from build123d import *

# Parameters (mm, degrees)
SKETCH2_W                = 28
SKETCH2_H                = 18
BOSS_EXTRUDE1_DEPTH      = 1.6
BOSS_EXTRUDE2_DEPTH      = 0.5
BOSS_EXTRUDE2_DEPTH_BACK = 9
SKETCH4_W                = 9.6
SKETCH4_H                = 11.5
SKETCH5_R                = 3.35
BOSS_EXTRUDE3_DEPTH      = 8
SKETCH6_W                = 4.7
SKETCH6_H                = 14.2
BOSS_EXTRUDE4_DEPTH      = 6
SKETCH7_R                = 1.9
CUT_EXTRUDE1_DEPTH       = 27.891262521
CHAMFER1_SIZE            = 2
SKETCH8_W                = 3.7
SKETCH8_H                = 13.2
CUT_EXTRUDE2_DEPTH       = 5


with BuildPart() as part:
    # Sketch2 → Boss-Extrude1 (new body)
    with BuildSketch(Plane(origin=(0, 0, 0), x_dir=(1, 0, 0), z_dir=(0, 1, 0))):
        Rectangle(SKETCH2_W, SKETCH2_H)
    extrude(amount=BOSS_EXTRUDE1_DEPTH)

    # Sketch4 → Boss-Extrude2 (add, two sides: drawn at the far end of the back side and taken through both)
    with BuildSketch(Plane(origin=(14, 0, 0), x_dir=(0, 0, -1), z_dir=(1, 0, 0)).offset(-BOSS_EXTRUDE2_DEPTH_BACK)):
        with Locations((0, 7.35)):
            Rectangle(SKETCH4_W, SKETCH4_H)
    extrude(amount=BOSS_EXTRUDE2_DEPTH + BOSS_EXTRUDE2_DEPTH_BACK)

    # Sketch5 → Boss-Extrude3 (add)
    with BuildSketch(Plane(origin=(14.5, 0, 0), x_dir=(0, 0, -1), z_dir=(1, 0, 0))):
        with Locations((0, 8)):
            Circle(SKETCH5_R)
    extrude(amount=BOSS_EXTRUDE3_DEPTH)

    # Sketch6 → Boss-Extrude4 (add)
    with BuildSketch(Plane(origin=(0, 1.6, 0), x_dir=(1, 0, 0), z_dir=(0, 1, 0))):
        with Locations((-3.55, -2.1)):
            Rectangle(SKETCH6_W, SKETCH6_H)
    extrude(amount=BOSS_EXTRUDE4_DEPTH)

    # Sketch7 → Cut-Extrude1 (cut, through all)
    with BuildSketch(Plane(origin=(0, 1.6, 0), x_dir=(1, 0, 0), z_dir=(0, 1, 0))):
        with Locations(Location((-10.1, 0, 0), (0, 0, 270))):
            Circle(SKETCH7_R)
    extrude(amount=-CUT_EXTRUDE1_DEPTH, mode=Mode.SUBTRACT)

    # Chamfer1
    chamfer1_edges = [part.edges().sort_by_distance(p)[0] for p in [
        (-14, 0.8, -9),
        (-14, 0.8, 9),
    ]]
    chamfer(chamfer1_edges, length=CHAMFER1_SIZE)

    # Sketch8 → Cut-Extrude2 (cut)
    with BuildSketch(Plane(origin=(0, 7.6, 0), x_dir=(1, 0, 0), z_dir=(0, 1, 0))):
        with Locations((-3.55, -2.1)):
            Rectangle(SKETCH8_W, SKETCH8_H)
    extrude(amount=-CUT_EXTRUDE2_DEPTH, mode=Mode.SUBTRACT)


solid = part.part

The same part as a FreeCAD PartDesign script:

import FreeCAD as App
import Part
import Sketcher
from FreeCAD import Vector


def edges_at(feature, points):
    """Names of the edges that pass closest to the given points."""
    edges = feature.Shape.Edges
    near = lambda p: min(range(len(edges)), key=lambda i: edges[i].distToShape(Part.Vertex(*p))[0])
    return sorted({f"Edge{near(p) + 1}" for p in points})

doc = App.newDocument("Part")
body = doc.addObject("PartDesign::Body", "Body")

sketch1 = body.newObject("Sketcher::SketchObject", "Sketch")
sketch1.AttachmentSupport = (doc.getObject("XZ_Plane"), [""])
sketch1.MapMode = "FlatFace"
sketch1.addGeometry([
    Part.LineSegment(Vector(-14, -9, 0), Vector(-14, 9, 0)),
    Part.LineSegment(Vector(-14, 9, 0), Vector(14, 9, 0)),
    Part.LineSegment(Vector(14, 9, 0), Vector(14, -9, 0)),
    Part.LineSegment(Vector(14, -9, 0), Vector(-14, -9, 0)),
], False)
sketch1.addConstraint([
    Sketcher.Constraint("Coincident", 0, 2, 1, 1),
    Sketcher.Constraint("Coincident", 1, 2, 2, 1),
    Sketcher.Constraint("Coincident", 2, 2, 3, 1),
    Sketcher.Constraint("Coincident", 3, 2, 0, 1),
    Sketcher.Constraint("Vertical", 0),
    Sketcher.Constraint("Horizontal", 1),
    Sketcher.Constraint("Vertical", 2),
    Sketcher.Constraint("Horizontal", 3),
    Sketcher.Constraint("Symmetric", 0, 2, 2, 2, -1, 1),
    Sketcher.Constraint("DistanceX", 1, 1, 1, 2, 28.0),
    Sketcher.Constraint("DistanceY", 0, 1, 0, 2, 18.0),
])
pad1 = body.newObject("PartDesign::Pad", "Pad")
pad1.Profile = sketch1
pad1.Length = 1.6
pad1.Reversed = True

sketch2 = body.newObject("Sketcher::SketchObject", "Sketch001")
sketch2.AttachmentSupport = (doc.getObject("YZ_Plane"), [""])
sketch2.MapMode = "FlatFace"
sketch2.AttachmentOffset = App.Placement(Vector(0, 0, 14), App.Rotation())
sketch2.addGeometry([
    Part.LineSegment(Vector(13, 5, 0), Vector(2, 5, 0)),
    Part.LineSegment(Vector(2, 5, 0), Vector(2, -5, 0)),
    Part.LineSegment(Vector(2, -5, 0), Vector(13, -5, 0)),
    Part.LineSegment(Vector(13, -5, 0), Vector(13, 5, 0)),
], False)
sketch2.addConstraint([
    Sketcher.Constraint("Coincident", 0, 2, 1, 1),
    Sketcher.Constraint("Coincident", 1, 2, 2, 1),
    Sketcher.Constraint("Coincident", 2, 2, 3, 1),
    Sketcher.Constraint("Coincident", 3, 2, 0, 1),
    Sketcher.Constraint("Horizontal", 0),
    Sketcher.Constraint("Vertical", 1),
    Sketcher.Constraint("Horizontal", 2),
    Sketcher.Constraint("Vertical", 3),
    Sketcher.Constraint("DistanceX", 0, 2, 0, 1, 11.5),
    Sketcher.Constraint("DistanceY", 1, 2, 1, 1, 9.6),
    Sketcher.Constraint("DistanceX", -1, 1, 0, 2, 1.6),
    Sketcher.Constraint("DistanceY", -1, 1, 0, 2, 4.8),
])
pad2 = body.newObject("PartDesign::Pad", "Pad001")
pad2.Profile = sketch2
pad2.Type = "TwoLengths"
pad2.Length = 0.5
pad2.Length2 = 9

sketch3 = body.newObject("Sketcher::SketchObject", "Sketch002")
sketch3.AttachmentSupport = (doc.getObject("YZ_Plane"), [""])
sketch3.MapMode = "FlatFace"
sketch3.AttachmentOffset = App.Placement(Vector(0, 0, 14.5), App.Rotation())
sketch3.addGeometry(Part.Circle(Vector(8, 0, 0), Vector(0, 0, 1), 3.4), False)
sketch3.addConstraint([
    Sketcher.Constraint("PointOnObject", 0, 3, -1),
    Sketcher.Constraint("Diameter", 0, 6.7),
    Sketcher.Constraint("DistanceX", -1, 1, 0, 3, 8.0),
])
pad3 = body.newObject("PartDesign::Pad", "Pad002")
pad3.Profile = sketch3
pad3.Length = 8

sketch4 = body.newObject("Sketcher::SketchObject", "Sketch003")
sketch4.AttachmentSupport = (doc.getObject("XZ_Plane"), [""])
sketch4.MapMode = "FlatFace"
sketch4.AttachmentOffset = App.Placement(Vector(0, 0, -1.6), App.Rotation())
sketch4.addGeometry([
    Part.LineSegment(Vector(-5.9, -5, 0), Vector(-5.9, 9.2, 0)),
    Part.LineSegment(Vector(-5.9, 9.2, 0), Vector(-1.2, 9.2, 0)),
    Part.LineSegment(Vector(-1.2, 9.2, 0), Vector(-1.2, -5, 0)),
    Part.LineSegment(Vector(-1.2, -5, 0), Vector(-5.9, -5, 0)),
], False)
sketch4.addConstraint([
    Sketcher.Constraint("Coincident", 0, 2, 1, 1),
    Sketcher.Constraint("Coincident", 1, 2, 2, 1),
    Sketcher.Constraint("Coincident", 2, 2, 3, 1),
    Sketcher.Constraint("Coincident", 3, 2, 0, 1),
    Sketcher.Constraint("Vertical", 0),
    Sketcher.Constraint("Horizontal", 1),
    Sketcher.Constraint("Vertical", 2),
    Sketcher.Constraint("Horizontal", 3),
    Sketcher.Constraint("DistanceX", 1, 1, 1, 2, 4.7),
    Sketcher.Constraint("DistanceY", 0, 1, 0, 2, 14.2),
    Sketcher.Constraint("DistanceY", 2, 2, -1, 1, 5.0),
    Sketcher.Constraint("DistanceX", 0, 2, -1, 1, 5.9),
])
pad4 = body.newObject("PartDesign::Pad", "Pad003")
pad4.Profile = sketch4
pad4.Length = 6
pad4.Reversed = True

sketch5 = body.newObject("Sketcher::SketchObject", "Sketch004")
sketch5.AttachmentSupport = (doc.getObject("XZ_Plane"), [""])
sketch5.MapMode = "FlatFace"
sketch5.AttachmentOffset = App.Placement(Vector(0, 0, -1.6), App.Rotation())
sketch5.addGeometry(Part.Circle(Vector(-10.1, 0, 0), Vector(0, 0, 1), 1.9), False)
sketch5.addConstraint([
    Sketcher.Constraint("PointOnObject", 0, 3, -1),
    Sketcher.Constraint("Diameter", 0, 3.8),
    Sketcher.Constraint("DistanceX", 0, 3, -1, 1, 10.1),
])
pocket1 = body.newObject("PartDesign::Pocket", "Pocket")
pocket1.Profile = sketch5
pocket1.Type = "ThroughAll"
pocket1.Reversed = True
doc.recompute()

chamfer = body.newObject("PartDesign::Chamfer", "Chamfer")
chamfer.Base = (pocket1, edges_at(pocket1, [(-14, 0.8, -9), (-14, 0.8, 9)]))
chamfer.Size = 2

sketch6 = body.newObject("Sketcher::SketchObject", "Sketch005")
sketch6.AttachmentSupport = (doc.getObject("XZ_Plane"), [""])
sketch6.MapMode = "FlatFace"
sketch6.AttachmentOffset = App.Placement(Vector(0, 0, -7.6), App.Rotation())
sketch6.addGeometry([
    Part.LineSegment(Vector(-5.4, -4.5, 0), Vector(-5.4, 8.7, 0)),
    Part.LineSegment(Vector(-5.4, 8.7, 0), Vector(-1.7, 8.7, 0)),
    Part.LineSegment(Vector(-1.7, 8.7, 0), Vector(-1.7, -4.5, 0)),
    Part.LineSegment(Vector(-1.7, -4.5, 0), Vector(-5.4, -4.5, 0)),
], False)
sketch6.addConstraint([
    Sketcher.Constraint("Coincident", 0, 2, 1, 1),
    Sketcher.Constraint("Coincident", 1, 2, 2, 1),
    Sketcher.Constraint("Coincident", 2, 2, 3, 1),
    Sketcher.Constraint("Coincident", 3, 2, 0, 1),
    Sketcher.Constraint("Vertical", 0),
    Sketcher.Constraint("Horizontal", 1),
    Sketcher.Constraint("Vertical", 2),
    Sketcher.Constraint("Horizontal", 3),
    Sketcher.Constraint("DistanceX", 1, 1, 1, 2, 3.7),
    Sketcher.Constraint("DistanceY", 0, 1, 0, 2, 13.2),
    Sketcher.Constraint("DistanceX", 0, 2, -1, 1, 5.4),
    Sketcher.Constraint("DistanceY", -1, 1, 0, 2, 8.7),
])
pocket2 = body.newObject("PartDesign::Pocket", "Pocket001")
pocket2.Profile = sketch6
pocket2.Length = 5
pocket2.Reversed = True

doc.recompute()
